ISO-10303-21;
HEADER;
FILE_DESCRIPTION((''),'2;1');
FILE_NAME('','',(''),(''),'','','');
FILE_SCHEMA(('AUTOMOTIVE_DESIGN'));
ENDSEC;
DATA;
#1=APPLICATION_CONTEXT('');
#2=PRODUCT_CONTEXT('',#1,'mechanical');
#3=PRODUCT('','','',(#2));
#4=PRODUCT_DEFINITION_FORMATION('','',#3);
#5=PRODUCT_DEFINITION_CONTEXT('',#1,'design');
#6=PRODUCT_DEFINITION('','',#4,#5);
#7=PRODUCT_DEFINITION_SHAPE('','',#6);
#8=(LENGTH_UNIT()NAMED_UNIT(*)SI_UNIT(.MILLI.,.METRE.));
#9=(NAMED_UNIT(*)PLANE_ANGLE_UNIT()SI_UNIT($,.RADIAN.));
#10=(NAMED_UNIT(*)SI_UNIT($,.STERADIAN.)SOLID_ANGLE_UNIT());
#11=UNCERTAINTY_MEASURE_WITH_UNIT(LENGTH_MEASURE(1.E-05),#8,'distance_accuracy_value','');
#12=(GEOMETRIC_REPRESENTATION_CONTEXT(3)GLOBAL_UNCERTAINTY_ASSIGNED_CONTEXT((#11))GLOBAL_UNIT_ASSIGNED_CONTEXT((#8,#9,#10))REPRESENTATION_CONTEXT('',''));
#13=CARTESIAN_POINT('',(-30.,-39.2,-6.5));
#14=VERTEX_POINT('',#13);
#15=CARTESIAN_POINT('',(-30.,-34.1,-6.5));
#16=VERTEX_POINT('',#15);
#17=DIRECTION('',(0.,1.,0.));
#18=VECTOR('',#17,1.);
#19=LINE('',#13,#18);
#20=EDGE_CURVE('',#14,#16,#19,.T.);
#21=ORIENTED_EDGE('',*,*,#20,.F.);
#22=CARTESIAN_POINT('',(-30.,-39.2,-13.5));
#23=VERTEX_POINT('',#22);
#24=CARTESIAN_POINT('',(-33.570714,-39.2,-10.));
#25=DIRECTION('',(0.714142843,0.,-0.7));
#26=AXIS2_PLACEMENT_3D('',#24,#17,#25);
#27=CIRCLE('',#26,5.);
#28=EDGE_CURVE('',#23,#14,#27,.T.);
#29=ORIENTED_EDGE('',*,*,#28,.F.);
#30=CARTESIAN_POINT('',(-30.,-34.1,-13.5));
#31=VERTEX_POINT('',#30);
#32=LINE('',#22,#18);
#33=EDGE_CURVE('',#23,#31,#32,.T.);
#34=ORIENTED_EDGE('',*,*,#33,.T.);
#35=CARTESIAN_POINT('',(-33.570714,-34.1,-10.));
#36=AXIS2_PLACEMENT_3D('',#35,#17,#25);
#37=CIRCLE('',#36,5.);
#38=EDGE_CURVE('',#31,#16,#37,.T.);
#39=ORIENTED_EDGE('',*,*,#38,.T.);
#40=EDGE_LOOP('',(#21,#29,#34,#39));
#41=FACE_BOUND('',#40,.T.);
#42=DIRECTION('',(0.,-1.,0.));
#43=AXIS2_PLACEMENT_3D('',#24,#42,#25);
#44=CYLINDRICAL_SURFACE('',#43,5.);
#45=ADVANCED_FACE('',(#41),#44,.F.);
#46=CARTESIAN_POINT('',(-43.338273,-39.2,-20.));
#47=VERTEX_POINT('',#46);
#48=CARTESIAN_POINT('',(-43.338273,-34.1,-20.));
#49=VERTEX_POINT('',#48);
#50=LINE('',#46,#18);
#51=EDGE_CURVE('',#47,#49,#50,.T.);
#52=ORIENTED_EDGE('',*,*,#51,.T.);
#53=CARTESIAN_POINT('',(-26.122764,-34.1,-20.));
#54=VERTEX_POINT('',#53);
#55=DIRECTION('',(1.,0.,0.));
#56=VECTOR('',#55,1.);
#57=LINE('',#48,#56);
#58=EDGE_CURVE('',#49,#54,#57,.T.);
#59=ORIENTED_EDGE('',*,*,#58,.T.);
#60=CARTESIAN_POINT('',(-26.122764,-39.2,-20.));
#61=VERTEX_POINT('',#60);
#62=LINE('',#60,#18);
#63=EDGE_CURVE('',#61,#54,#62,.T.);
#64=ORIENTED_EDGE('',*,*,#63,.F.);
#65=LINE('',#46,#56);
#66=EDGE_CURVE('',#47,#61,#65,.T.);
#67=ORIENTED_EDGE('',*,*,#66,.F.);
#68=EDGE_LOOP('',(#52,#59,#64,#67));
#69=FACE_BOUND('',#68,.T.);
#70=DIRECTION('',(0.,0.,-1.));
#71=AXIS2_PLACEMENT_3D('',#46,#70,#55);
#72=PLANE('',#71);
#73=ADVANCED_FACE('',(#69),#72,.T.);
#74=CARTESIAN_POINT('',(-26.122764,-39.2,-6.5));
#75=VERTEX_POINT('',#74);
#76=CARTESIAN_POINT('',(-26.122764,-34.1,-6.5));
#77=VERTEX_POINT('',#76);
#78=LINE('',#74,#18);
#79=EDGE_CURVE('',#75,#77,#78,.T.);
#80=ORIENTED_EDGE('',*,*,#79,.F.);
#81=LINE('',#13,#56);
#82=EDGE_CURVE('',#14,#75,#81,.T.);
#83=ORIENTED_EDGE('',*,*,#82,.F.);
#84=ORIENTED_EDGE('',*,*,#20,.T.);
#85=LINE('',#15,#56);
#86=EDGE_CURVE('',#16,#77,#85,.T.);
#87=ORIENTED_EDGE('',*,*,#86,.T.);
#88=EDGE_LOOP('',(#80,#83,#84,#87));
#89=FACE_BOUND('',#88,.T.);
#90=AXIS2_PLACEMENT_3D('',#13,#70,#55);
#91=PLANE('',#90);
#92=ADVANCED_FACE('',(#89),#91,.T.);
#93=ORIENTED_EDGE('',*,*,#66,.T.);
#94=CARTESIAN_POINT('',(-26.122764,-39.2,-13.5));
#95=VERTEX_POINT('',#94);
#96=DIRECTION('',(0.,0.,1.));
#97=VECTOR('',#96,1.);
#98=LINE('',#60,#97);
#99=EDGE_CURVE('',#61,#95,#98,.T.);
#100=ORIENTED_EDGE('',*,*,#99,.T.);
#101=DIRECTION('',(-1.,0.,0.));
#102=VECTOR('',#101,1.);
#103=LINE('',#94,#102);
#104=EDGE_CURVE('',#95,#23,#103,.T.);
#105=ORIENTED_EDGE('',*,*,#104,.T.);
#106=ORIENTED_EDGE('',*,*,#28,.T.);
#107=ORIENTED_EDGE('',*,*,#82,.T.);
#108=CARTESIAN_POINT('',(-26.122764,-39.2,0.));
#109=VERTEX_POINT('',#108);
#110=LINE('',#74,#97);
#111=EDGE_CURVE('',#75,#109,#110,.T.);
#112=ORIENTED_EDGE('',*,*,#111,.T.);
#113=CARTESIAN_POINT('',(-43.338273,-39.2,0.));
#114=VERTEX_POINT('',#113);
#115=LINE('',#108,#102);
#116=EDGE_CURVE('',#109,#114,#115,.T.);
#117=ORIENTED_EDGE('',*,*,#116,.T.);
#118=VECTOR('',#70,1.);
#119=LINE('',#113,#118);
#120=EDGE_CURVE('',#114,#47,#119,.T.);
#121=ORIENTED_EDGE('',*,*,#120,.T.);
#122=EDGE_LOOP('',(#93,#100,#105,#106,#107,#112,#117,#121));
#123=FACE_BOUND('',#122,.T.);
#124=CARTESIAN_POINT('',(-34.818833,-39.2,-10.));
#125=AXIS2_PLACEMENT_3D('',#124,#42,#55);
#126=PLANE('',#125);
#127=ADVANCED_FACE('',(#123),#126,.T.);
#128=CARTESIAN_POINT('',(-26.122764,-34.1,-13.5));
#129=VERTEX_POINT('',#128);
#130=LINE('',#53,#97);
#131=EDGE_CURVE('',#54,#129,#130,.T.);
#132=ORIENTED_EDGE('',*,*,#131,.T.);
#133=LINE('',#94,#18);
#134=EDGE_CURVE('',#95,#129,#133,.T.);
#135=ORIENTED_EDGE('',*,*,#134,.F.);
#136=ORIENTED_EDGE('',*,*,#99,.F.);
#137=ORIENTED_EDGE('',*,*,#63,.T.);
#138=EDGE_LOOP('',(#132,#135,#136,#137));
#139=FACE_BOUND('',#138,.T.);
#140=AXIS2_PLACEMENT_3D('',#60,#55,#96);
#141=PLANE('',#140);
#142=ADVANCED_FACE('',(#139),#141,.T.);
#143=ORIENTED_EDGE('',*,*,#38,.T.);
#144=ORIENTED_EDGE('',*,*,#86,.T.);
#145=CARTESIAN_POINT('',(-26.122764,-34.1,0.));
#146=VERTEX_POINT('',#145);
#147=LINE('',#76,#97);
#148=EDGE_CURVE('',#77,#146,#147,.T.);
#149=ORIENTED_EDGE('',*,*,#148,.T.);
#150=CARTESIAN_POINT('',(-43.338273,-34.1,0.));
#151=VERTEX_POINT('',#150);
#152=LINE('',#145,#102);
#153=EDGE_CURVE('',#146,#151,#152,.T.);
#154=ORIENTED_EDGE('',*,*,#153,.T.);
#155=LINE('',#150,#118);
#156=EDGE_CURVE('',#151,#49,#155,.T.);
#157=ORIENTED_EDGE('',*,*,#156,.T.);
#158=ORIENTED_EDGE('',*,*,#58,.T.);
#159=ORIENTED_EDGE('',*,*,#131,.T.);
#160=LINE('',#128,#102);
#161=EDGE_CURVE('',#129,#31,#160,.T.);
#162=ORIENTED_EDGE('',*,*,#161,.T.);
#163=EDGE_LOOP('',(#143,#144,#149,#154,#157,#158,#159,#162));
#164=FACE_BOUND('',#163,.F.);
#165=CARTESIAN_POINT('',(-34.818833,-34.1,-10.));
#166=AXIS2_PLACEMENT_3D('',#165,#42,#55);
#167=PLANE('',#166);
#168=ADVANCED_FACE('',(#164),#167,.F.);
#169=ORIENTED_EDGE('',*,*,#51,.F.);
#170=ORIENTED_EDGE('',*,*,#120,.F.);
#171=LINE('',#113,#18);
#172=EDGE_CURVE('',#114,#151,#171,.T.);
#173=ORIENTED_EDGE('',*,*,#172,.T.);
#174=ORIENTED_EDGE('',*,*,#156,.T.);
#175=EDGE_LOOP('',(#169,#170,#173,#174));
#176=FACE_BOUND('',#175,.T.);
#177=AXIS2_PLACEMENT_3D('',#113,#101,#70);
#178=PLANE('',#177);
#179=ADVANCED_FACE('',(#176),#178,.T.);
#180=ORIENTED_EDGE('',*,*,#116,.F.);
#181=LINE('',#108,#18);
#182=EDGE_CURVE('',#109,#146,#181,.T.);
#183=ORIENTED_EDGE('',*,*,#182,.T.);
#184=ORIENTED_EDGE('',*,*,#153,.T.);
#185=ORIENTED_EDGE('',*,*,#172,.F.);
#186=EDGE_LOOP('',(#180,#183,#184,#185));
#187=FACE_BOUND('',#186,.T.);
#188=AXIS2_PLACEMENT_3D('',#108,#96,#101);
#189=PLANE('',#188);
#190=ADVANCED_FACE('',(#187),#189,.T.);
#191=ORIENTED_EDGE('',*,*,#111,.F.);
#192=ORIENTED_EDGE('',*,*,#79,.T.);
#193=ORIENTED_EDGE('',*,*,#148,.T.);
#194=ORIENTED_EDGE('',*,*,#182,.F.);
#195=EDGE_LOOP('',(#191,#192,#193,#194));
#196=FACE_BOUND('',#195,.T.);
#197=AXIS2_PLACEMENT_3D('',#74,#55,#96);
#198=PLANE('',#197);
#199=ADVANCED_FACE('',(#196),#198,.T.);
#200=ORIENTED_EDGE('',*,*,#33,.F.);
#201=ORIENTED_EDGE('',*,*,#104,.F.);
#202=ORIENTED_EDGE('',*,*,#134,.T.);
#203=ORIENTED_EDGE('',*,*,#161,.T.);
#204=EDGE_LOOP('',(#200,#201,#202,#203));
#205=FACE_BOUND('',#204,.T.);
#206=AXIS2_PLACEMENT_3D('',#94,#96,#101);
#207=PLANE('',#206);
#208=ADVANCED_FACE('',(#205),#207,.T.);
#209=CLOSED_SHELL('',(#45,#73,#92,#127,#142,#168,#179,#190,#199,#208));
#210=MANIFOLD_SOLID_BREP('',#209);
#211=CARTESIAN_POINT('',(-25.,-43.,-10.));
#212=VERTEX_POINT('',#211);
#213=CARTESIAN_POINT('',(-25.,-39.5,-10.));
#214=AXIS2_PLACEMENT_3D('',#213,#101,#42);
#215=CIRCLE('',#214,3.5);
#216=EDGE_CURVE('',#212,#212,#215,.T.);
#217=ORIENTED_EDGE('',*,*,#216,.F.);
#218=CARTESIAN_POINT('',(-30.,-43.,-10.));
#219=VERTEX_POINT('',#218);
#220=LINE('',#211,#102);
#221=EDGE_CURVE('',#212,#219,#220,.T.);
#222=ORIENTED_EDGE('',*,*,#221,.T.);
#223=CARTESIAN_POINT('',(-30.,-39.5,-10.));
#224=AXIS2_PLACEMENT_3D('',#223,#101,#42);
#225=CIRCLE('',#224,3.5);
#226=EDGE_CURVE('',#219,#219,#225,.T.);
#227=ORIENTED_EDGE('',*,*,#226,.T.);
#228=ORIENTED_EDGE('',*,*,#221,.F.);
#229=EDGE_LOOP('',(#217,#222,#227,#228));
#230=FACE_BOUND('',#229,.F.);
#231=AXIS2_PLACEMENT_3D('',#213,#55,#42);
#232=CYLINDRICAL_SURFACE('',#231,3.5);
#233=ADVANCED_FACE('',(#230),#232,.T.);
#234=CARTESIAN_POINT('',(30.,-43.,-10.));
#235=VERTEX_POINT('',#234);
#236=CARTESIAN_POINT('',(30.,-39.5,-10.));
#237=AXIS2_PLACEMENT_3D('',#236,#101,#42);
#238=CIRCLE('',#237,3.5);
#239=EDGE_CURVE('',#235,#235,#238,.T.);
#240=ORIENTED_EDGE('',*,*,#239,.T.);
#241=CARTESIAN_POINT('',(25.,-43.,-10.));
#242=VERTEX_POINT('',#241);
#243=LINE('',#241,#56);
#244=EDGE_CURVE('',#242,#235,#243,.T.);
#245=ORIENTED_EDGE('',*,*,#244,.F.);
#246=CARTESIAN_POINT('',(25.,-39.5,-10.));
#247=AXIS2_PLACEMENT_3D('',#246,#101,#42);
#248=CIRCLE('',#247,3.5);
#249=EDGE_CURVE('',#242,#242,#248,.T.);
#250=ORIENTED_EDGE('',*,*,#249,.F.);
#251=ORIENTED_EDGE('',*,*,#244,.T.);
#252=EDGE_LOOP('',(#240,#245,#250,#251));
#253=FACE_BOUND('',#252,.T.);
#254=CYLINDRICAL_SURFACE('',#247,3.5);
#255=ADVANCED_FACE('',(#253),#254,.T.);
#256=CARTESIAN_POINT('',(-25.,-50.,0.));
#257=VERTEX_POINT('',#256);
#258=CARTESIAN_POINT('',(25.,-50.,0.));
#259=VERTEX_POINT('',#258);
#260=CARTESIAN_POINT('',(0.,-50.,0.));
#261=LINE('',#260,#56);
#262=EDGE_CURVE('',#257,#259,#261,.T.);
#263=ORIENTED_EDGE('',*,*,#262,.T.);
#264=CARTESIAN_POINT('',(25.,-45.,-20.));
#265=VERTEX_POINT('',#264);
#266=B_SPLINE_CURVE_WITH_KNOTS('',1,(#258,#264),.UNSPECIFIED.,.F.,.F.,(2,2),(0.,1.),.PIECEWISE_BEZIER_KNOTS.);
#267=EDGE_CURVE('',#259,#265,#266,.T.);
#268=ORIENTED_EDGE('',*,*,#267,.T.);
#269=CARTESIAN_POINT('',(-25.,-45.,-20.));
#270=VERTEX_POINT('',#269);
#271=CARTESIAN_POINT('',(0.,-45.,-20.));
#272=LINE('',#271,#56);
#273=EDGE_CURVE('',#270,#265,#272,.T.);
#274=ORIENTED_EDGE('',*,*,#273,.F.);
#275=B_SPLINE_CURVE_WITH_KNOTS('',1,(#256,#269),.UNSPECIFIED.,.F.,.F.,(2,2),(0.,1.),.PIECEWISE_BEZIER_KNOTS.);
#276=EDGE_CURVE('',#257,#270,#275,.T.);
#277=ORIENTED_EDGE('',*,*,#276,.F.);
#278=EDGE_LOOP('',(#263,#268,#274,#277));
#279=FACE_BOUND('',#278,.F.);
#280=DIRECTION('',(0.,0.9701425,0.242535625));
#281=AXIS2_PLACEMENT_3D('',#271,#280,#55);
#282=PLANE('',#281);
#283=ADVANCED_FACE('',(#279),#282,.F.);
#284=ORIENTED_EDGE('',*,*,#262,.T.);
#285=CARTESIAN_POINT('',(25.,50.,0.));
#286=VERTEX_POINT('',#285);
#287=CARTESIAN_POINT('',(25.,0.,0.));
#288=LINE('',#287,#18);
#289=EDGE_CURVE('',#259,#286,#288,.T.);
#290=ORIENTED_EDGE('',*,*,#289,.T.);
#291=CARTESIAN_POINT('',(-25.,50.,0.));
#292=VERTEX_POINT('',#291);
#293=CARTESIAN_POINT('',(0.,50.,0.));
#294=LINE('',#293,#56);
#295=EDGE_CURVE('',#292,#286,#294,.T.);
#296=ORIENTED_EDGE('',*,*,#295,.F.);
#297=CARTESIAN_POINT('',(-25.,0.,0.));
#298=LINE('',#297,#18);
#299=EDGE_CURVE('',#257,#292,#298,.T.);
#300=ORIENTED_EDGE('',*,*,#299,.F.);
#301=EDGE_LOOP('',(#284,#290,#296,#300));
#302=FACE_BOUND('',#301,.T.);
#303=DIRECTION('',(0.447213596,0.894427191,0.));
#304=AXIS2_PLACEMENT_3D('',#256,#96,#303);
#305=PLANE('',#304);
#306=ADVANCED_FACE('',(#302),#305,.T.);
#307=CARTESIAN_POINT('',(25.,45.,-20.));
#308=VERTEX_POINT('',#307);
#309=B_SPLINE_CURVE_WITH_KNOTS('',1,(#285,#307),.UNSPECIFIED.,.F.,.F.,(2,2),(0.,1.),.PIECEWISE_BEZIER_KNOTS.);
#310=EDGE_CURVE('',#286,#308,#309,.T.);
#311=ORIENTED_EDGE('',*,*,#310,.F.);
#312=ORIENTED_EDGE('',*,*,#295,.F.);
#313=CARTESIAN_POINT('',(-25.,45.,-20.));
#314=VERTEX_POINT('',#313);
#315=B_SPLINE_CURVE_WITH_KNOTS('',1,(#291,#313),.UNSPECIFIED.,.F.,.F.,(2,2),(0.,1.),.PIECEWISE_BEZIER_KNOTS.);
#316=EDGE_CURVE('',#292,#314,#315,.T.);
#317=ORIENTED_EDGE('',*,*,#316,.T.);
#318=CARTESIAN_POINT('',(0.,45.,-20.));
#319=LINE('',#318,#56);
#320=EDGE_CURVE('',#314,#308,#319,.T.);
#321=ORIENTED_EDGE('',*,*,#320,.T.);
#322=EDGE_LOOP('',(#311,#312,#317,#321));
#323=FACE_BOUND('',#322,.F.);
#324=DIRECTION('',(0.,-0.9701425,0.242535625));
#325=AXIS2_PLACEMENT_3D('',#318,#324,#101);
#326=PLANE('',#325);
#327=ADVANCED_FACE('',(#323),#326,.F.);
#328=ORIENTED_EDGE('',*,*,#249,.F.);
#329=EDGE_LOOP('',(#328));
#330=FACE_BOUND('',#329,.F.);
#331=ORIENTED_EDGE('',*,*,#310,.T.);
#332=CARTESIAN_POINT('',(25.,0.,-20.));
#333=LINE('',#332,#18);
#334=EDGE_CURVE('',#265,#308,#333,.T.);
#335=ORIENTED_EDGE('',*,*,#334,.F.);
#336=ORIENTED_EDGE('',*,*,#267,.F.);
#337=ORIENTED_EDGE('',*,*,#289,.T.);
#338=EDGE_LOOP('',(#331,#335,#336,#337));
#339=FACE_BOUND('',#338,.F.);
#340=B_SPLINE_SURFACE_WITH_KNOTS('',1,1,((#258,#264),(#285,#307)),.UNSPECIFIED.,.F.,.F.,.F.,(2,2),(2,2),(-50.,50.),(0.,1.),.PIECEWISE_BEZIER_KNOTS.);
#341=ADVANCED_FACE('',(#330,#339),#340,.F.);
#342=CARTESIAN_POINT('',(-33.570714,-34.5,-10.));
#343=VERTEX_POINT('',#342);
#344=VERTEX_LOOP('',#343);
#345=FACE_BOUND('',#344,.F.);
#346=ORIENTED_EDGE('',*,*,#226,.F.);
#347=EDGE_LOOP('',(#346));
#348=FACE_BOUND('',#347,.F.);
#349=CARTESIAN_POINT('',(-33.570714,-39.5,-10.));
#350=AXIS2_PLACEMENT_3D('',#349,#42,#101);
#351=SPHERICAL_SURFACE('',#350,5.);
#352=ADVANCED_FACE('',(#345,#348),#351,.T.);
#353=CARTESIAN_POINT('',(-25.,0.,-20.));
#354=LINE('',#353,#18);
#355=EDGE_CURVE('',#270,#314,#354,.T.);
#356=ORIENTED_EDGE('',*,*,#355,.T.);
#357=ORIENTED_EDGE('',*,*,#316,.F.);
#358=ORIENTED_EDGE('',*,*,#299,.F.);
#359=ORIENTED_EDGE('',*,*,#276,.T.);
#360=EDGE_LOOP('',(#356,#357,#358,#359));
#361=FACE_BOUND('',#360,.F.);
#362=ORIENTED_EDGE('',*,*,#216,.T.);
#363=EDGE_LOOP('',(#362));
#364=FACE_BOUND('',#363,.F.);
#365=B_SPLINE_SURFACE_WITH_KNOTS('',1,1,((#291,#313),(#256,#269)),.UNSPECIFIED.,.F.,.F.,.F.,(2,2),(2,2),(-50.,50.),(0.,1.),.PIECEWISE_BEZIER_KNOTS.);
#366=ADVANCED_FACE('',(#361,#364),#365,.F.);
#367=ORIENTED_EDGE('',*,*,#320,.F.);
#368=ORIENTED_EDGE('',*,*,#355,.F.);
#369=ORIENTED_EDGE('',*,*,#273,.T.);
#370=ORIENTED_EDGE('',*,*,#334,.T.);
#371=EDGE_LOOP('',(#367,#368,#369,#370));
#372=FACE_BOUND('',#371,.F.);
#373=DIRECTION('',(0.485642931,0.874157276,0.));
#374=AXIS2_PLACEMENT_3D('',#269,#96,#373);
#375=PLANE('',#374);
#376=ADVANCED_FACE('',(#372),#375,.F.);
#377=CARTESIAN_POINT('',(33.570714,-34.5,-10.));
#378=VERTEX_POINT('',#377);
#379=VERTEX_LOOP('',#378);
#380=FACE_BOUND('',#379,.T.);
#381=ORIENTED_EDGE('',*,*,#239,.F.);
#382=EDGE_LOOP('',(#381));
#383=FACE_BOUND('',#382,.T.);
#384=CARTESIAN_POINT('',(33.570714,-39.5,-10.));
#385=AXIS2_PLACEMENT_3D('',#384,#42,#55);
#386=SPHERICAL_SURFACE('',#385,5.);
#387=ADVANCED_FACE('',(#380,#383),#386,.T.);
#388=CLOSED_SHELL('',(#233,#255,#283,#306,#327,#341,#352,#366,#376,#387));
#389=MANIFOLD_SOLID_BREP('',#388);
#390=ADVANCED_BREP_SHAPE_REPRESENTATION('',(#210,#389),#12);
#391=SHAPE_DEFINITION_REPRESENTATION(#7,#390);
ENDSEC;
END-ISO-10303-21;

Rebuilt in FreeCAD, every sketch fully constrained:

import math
import FreeCAD as App
import Part
import Sketcher
from FreeCAD import Vector


def add_polygon(sketch, points):
    """Adds a closed chain of lines whose ends are joined by coincident constraints."""
    first, n = sketch.GeometryCount, len(points)
    for a, b in zip(points, points[1:] + points[:1]):
        sketch.addGeometry(Part.LineSegment(App.Vector(*a, 0), App.Vector(*b, 0)), False)
    for i in range(n):
        sketch.addConstraint(Sketcher.Constraint("Coincident", first + i, 2, first + (i + 1) % n, 1))

doc = App.newDocument("Part")
params = doc.addObject("Spreadsheet::Sheet", "Params")
for row, (alias, value) in enumerate([
    ("sketch1_width", "50 mm"),
    ("sketch1_height", "100 mm"),
    ("sketch2_width", "50 mm"),
    ("sketch2_height", "90 mm"),
    ("sketch3_diameter", "7 mm"),
    ("pad1_length", "5 mm"),
    ("sketch4_radius", "5 mm"),
    ("revolution_angle", "360 deg"),
    ("sketch5_radius", "5 mm"),
    ("sketch5_height", "20 mm"),
    ("sketch5_height2", "6.5 mm"),
    ("pad2_length", "5.1 mm"),
], start=1):
    params.set(f"A{row}", alias)
    params.set(f"B{row}", "=" + value)
    params.setAlias(f"B{row}", alias)

body = doc.addObject("PartDesign::Body", "Body")

sketch1 = body.newObject("Sketcher::SketchObject", "Sketch")
sketch1.AttachmentSupport = (doc.getObject("XY_Plane"), [""])
sketch1.MapMode = "FlatFace"
add_polygon(sketch1, [(-25, 50), (-25, -50), (25, -50), (25, 50)])
sketch1.addConstraint([
    Sketcher.Constraint("Vertical", 0),
    Sketcher.Constraint("Horizontal", 1),
    Sketcher.Constraint("Vertical", 2),
    Sketcher.Constraint("Horizontal", 3),
    Sketcher.Constraint("Symmetric", 0, 2, 2, 2, -1, 1),
    Sketcher.Constraint("DistanceX", 1, 1, 1, 2, 50.0),
    Sketcher.Constraint("DistanceY", 0, 2, 0, 1, 100.0),
])
sketch1.setExpression("Constraints[9]", "Params.sketch1_width")
sketch1.setExpression("Constraints[10]", "Params.sketch1_height")

sketch2 = body.newObject("Sketcher::SketchObject", "Sketch001")
sketch2.AttachmentSupport = (doc.getObject("XY_Plane"), [""])
sketch2.MapMode = "FlatFace"
sketch2.AttachmentOffset = App.Placement(Vector(0, 0, -20), App.Rotation())
add_polygon(sketch2, [(-25, 45), (-25, -45), (25, -45), (25, 45)])
sketch2.addConstraint([
    Sketcher.Constraint("Vertical", 0),
    Sketcher.Constraint("Horizontal", 1),
    Sketcher.Constraint("Vertical", 2),
    Sketcher.Constraint("Horizontal", 3),
    Sketcher.Constraint("Symmetric", 0, 2, 2, 2, -1, 1),
    Sketcher.Constraint("DistanceX", 1, 1, 1, 2, 50.0),
    Sketcher.Constraint("DistanceY", 0, 2, 0, 1, 90.0),
])
sketch2.setExpression("Constraints[9]", "Params.sketch2_width")
sketch2.setExpression("Constraints[10]", "Params.sketch2_height")

additiveloft = body.newObject("PartDesign::AdditiveLoft", "AdditiveLoft")
additiveloft.Profile = sketch1
additiveloft.Sections = [sketch2]

sketch3 = body.newObject("Sketcher::SketchObject", "Sketch002")
sketch3.AttachmentSupport = (doc.getObject("YZ_Plane"), [""])
sketch3.MapMode = "FlatFace"
sketch3.AttachmentOffset = App.Placement(Vector(0, 0, -25), App.Rotation())
sketch3.addGeometry(Part.Circle(Vector(-39.5, -10, 0), Vector(0, 0, 1), 3.5), False)
sketch3.addConstraint([
    Sketcher.Constraint("Diameter", 0, 7.0),
    Sketcher.Constraint("DistanceY", 0, 3, -1, 1, 10.0),
    Sketcher.Constraint("DistanceX", 0, 3, -1, 1, 39.5),
])
sketch3.setExpression("Constraints[0]", "Params.sketch3_diameter")
pad1 = body.newObject("PartDesign::Pad", "Pad")
pad1.Profile = sketch3
pad1.setExpression("Length", "Params.pad1_length")
pad1.Reversed = True

sketch4 = body.newObject("Sketcher::SketchObject", "Sketch003")
sketch4.AttachmentSupport = (doc.getObject("XY_Plane"), [""])
sketch4.MapMode = "FlatFace"
sketch4.AttachmentOffset = App.Placement(Vector(0, 0, -10), App.Rotation())
sketch4.addGeometry([
    Part.LineSegment(Vector(-34, -44, 0), Vector(-34, -34, 0)),
    Part.ArcOfCircle(Part.Circle(Vector(-34, -40, 0), Vector(0, 0, 1), 5), math.radians(90), math.radians(270)),
], False)
sketch4.addGeometry(Part.LineSegment(Vector(-34, -44, 0), Vector(-34, -34, 0)), True)
sketch4.addConstraint([
    Sketcher.Constraint("Coincident", 0, 1, 1, 2),
    Sketcher.Constraint("Coincident", 1, 1, 0, 2),
    Sketcher.Constraint("Vertical", 0),
    Sketcher.Constraint("Vertical", 2),
    Sketcher.Constraint("Coincident", 2, 1, 0, 1),
    Sketcher.Constraint("Vertical", 1, 3, 0, 1),
    Sketcher.Constraint("Equal", 0, 2),
    Sketcher.Constraint("Radius", 1, 5.0),
    Sketcher.Constraint("DistanceY", 1, 3, -1, 1, 39.5),
    Sketcher.Constraint("DistanceX", 1, 3, -1, 1, 33.570714),
])
sketch4.setExpression("Constraints[7]", "Params.sketch4_radius")
revolution = body.newObject("PartDesign::Revolution", "Revolution")
revolution.Profile = sketch4
revolution.ReferenceAxis = (sketch4, ["Axis0"])
revolution.setExpression("Angle", "Params.revolution_angle")
body2 = doc.addObject("PartDesign::Body", "Body001")
doc.recompute()

body2.BaseFeature = body
doc.recompute()

mirroring = doc.addObject("Part::Mirroring", "Mirroring")
mirroring.Source = body
mirroring.Base = Vector(0, 0, 0)
mirroring.Normal = Vector(1, 0, 0)
body3 = doc.addObject("PartDesign::Body", "Body002")
body3.BaseFeature = mirroring
boolean = body2.newObject("PartDesign::Boolean", "Boolean")
boolean.Type = "Fuse"
boolean.addObjects([body3])
doc.recompute()
body4 = doc.addObject("PartDesign::Body", "Body003")

sketch5 = body4.newObject("Sketcher::SketchObject", "Sketch004")
sketch5.AttachmentSupport = (doc.getObject("XZ_Plane003"), [""])
sketch5.MapMode = "FlatFace"
sketch5.AttachmentOffset = App.Placement(Vector(0, 0, 39.2), App.Rotation())
sketch5.addGeometry([
    Part.ArcOfCircle(Part.Circle(Vector(-33.6, -10, 0), Vector(0, 0, 1), 5), math.radians(44), math.radians(316)),
    Part.LineSegment(Vector(-30, -6.5, 0), Vector(-26.1, -6.5, 0)),
    Part.LineSegment(Vector(-26.1, -6.5, 0), Vector(-26.1, 0, 0)),
    Part.LineSegment(Vector(-26.1, 0, 0), Vector(-43.3, 0, 0)),
    Part.LineSegment(Vector(-43.3, 0, 0), Vector(-43.3, -20, 0)),
    Part.LineSegment(Vector(-43.3, -20, 0), Vector(-26.1, -20, 0)),
    Part.LineSegment(Vector(-26.1, -20, 0), Vector(-26.1, -13.5, 0)),
    Part.LineSegment(Vector(-26.1, -13.5, 0), Vector(-30, -13.5, 0)),
], False)
sketch5.addConstraint([
    Sketcher.Constraint("Coincident", 0, 1, 1, 1),
    Sketcher.Constraint("Coincident", 1, 2, 2, 1),
    Sketcher.Constraint("Coincident", 2, 2, 3, 1),
    Sketcher.Constraint("Coincident", 3, 2, 4, 1),
    Sketcher.Constraint("Coincident", 4, 2, 5, 1),
    Sketcher.Constraint("Coincident", 5, 2, 6, 1),
    Sketcher.Constraint("Coincident", 6, 2, 7, 1),
    Sketcher.Constraint("Coincident", 7, 2, 0, 2),
    Sketcher.Constraint("Horizontal", 1),
    Sketcher.Constraint("Vertical", 2),
    Sketcher.Constraint("Horizontal", 3),
    Sketcher.Constraint("Vertical", 4),
    Sketcher.Constraint("Horizontal", 5),
    Sketcher.Constraint("Vertical", 6),
    Sketcher.Constraint("Horizontal", 7),
    Sketcher.Constraint("PointOnObject", 2, 2, -1),
    Sketcher.Constraint("Vertical", 2, 2, 5, 2),
    Sketcher.Constraint("Vertical", 0, 1, 7, 2),
    Sketcher.Constraint("Equal", 2, 6),
    Sketcher.Constraint("Radius", 0, 5.0),
    Sketcher.Constraint("DistanceY", 4, 2, 4, 1, 20.0),
    Sketcher.Constraint("DistanceY", 2, 1, 2, 2, 6.5),
    Sketcher.Constraint("DistanceX", 0, 1, -1, 1, 30.0),
    Sketcher.Constraint("DistanceX", 3, 2, 3, 1, 17.215509),
    Sketcher.Constraint("DistanceX", 1, 1, 1, 2, 3.877236),
])
sketch5.setExpression("Constraints[19]", "Params.sketch5_radius")
sketch5.setExpression("Constraints[20]", "Params.sketch5_height")
sketch5.setExpression("Constraints[21]", "Params.sketch5_height2")
pad2 = body4.newObject("PartDesign::Pad", "Pad001")
pad2.Profile = sketch5
pad2.setExpression("Length", "Params.pad2_length")
pad2.Reversed = True
mirroring.Visibility = False

doc.recompute()
